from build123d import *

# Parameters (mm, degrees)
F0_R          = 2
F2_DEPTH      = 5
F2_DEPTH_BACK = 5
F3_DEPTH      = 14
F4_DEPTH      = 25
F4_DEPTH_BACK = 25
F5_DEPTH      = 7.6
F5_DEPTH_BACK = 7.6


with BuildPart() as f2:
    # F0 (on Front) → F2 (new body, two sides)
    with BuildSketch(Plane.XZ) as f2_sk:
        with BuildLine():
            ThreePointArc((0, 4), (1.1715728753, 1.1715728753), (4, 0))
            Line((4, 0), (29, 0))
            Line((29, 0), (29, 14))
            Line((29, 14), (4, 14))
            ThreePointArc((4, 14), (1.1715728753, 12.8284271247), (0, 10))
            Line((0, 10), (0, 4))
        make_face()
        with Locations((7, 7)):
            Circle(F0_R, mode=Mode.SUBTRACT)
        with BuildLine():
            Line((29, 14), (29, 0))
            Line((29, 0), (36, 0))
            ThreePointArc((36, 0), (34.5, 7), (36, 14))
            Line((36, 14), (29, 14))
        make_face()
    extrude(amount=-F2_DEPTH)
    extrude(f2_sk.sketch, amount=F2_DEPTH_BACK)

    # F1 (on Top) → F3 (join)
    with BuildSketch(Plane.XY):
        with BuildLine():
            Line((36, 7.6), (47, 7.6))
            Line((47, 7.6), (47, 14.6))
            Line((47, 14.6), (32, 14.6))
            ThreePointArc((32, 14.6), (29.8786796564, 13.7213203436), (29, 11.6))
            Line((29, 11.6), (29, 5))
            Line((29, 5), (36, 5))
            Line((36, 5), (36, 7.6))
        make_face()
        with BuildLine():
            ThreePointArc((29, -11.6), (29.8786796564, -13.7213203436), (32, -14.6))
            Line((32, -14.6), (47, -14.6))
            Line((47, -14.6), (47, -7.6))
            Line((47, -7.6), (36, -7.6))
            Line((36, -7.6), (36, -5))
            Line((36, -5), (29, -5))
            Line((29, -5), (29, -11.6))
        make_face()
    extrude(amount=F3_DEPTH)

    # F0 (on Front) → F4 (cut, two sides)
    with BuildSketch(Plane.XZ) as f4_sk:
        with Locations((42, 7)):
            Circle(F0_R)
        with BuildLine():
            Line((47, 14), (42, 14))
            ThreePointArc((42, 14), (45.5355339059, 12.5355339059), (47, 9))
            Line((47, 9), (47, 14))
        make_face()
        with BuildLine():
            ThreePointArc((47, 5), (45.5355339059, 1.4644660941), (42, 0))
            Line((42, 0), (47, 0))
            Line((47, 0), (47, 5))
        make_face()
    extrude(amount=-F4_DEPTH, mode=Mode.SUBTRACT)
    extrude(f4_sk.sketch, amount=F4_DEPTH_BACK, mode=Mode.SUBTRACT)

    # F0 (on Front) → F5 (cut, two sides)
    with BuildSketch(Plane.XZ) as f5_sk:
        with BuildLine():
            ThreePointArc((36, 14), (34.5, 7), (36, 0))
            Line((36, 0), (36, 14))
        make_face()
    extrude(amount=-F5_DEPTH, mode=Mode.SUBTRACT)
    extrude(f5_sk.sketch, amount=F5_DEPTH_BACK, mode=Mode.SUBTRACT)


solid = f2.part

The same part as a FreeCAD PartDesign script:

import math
import FreeCAD as App
import Part
import Sketcher
from FreeCAD import Vector
Q = App.Units.Quantity

doc = App.newDocument("Part")
params = doc.addObject("Spreadsheet::Sheet", "Params")
for row, (alias, value) in enumerate([
    ("sketch1_diameter", "4 mm"),
    ("sketch1_radius", "4 mm"),
    ("sketch1_width", "32 mm"),
    ("sketch1_height", "6 mm"),
    ("pad1_length", "5 mm"),
    ("pad1_length2", "5 mm"),
    ("sketch2_radius", "3 mm"),
    ("sketch2_width", "11 mm"),
    ("sketch2_width2", "15 mm"),
    ("sketch2_height", "6.6 mm"),
    ("pad2_length", "14 mm"),
    ("sketch3_diameter", "4 mm"),
    ("sketch3_radius", "5 mm"),
    ("sketch4_height", "14 mm"),
    ("pocket2_length", "7.6 mm"),
    ("pocket2_length2", "7.6 mm"),
], start=1):
    params.set(f"A{row}", alias)
    params.set(f"B{row}", "=" + value)
    params.setAlias(f"B{row}", alias)

body = doc.addObject("PartDesign::Body", "Body")

sketch1 = body.newObject("Sketcher::SketchObject", "Sketch")
sketch1.AttachmentSupport = (doc.getObject("XZ_Plane"), [""])
sketch1.MapMode = "FlatFace"
sketch1.addGeometry([
    Part.ArcOfCircle(Part.Circle(Vector(4, 4, 0), Vector(0, 0, 1), 4), math.radians(180), math.radians(270)),
    Part.LineSegment(Vector(4, 0, 0), Vector(36, 0, 0)),
    Part.ArcOfCircle(Part.Circle(Vector(51.6, 7, 0), Vector(0, 0, 1), 17.1), math.radians(156), math.radians(204)),
    Part.LineSegment(Vector(36, 14, 0), Vector(4, 14, 0)),
    Part.ArcOfCircle(Part.Circle(Vector(4, 10, 0), Vector(0, 0, 1), 4), math.radians(90), math.radians(180)),
    Part.LineSegment(Vector(0, 10, 0), Vector(0, 4, 0)),
    Part.Circle(Vector(7, 7, 0), Vector(0, 0, 1), 2),
], False)
sketch1.addConstraint([
    Sketcher.Constraint("Tangent", 0, 2, 1, 1),
    Sketcher.Constraint("Coincident", 1, 2, 2, 2),
    Sketcher.Constraint("Coincident", 2, 1, 3, 1),
    Sketcher.Constraint("Tangent", 3, 2, 4, 1),
    Sketcher.Constraint("Tangent", 4, 2, 5, 1),
    Sketcher.Constraint("Tangent", 5, 2, 0, 1),
    Sketcher.Constraint("Horizontal", 1),
    Sketcher.Constraint("Horizontal", 3),
    Sketcher.Constraint("Vertical", 5),
    Sketcher.Constraint("Equal", 0, 4),
    Sketcher.Constraint("PointOnObject", 0, 2, -1),
    Sketcher.Constraint("PointOnObject", 4, 2, -2),
    Sketcher.Constraint("Horizontal", 2, 3, 6, 3),
    Sketcher.Constraint("Vertical", 1, 2, 2, 1),
    Sketcher.Constraint("Diameter", 6, Q("4 mm")),
    Sketcher.Constraint("Radius", 0, Q("4 mm")),
    Sketcher.Constraint("DistanceX", 1, 1, 1, 2, Q("32 mm")),
    Sketcher.Constraint("DistanceY", 5, 2, 5, 1, Q("6 mm")),
    Sketcher.Constraint("DistanceX", -1, 1, 6, 3, Q("7 mm")),
    Sketcher.Constraint("Radius", 2, Q("17.083333 mm")),
])
sketch1.setExpression("Constraints[14]", "Params.sketch1_diameter")
sketch1.setExpression("Constraints[15]", "Params.sketch1_radius")
sketch1.setExpression("Constraints[16]", "Params.sketch1_width")
sketch1.setExpression("Constraints[17]", "Params.sketch1_height")
pad1 = body.newObject("PartDesign::Pad", "Pad")
pad1.Profile = sketch1
pad1.Type = "TwoLengths"
pad1.setExpression("Length", "Params.pad1_length")
pad1.setExpression("Length2", "Params.pad1_length2")
pad1.Reversed = True

sketch2 = body.newObject("Sketcher::SketchObject", "Sketch001")
sketch2.AttachmentSupport = (doc.getObject("XY_Plane"), [""])
sketch2.MapMode = "FlatFace"
sketch2.addGeometry([
    Part.LineSegment(Vector(36, 7.6, 0), Vector(47, 7.6, 0)),
    Part.LineSegment(Vector(47, 7.6, 0), Vector(47, 14.6, 0)),
    Part.LineSegment(Vector(47, 14.6, 0), Vector(32, 14.6, 0)),
    Part.ArcOfCircle(Part.Circle(Vector(32, 11.6, 0), Vector(0, 0, 1), 3), math.radians(90), math.radians(180)),
    Part.LineSegment(Vector(29, 11.6, 0), Vector(29, 5, 0)),
    Part.LineSegment(Vector(29, 5, 0), Vector(36, 5, 0)),
    Part.LineSegment(Vector(36, 5, 0), Vector(36, 7.6, 0)),
    Part.ArcOfCircle(Part.Circle(Vector(32, -11.6, 0), Vector(0, 0, 1), 3), math.radians(180), math.radians(270)),
    Part.LineSegment(Vector(32, -14.6, 0), Vector(47, -14.6, 0)),
    Part.LineSegment(Vector(47, -14.6, 0), Vector(47, -7.6, 0)),
    Part.LineSegment(Vector(47, -7.6, 0), Vector(36, -7.6, 0)),
    Part.LineSegment(Vector(36, -7.6, 0), Vector(36, -5, 0)),
    Part.LineSegment(Vector(36, -5, 0), Vector(29, -5, 0)),
    Part.LineSegment(Vector(29, -5, 0), Vector(29, -11.6, 0)),
], False)
sketch2.addConstraint([
    Sketcher.Constraint("Coincident", 0, 2, 1, 1),
    Sketcher.Constraint("Coincident", 1, 2, 2, 1),
    Sketcher.Constraint("Tangent", 2, 2, 3, 1),
    Sketcher.Constraint("Tangent", 3, 2, 4, 1),
    Sketcher.Constraint("Coincident", 4, 2, 5, 1),
    Sketcher.Constraint("Coincident", 5, 2, 6, 1),
    Sketcher.Constraint("Coincident", 6, 2, 0, 1),
    Sketcher.Constraint("Tangent", 7, 2, 8, 1),
    Sketcher.Constraint("Coincident", 8, 2, 9, 1),
    Sketcher.Constraint("Coincident", 9, 2, 10, 1),
    Sketcher.Constraint("Coincident", 10, 2, 11, 1),
    Sketcher.Constraint("Coincident", 11, 2, 12, 1),
    Sketcher.Constraint("Coincident", 12, 2, 13, 1),
    Sketcher.Constraint("Tangent", 13, 2, 7, 1),
    Sketcher.Constraint("Horizontal", 0),
    Sketcher.Constraint("Vertical", 1),
    Sketcher.Constraint("Horizontal", 2),
    Sketcher.Constraint("Vertical", 4),
    Sketcher.Constraint("Horizontal", 5),
    Sketcher.Constraint("Vertical", 6),
    Sketcher.Constraint("Horizontal", 8),
    Sketcher.Constraint("Vertical", 9),
    Sketcher.Constraint("Horizontal", 10),
    Sketcher.Constraint("Vertical", 11),
    Sketcher.Constraint("Horizontal", 12),
    Sketcher.Constraint("Vertical", 13),
    Sketcher.Constraint("Equal", 3, 7),
    Sketcher.Constraint("Symmetric", 3, 3, 7, 3, -1),
    Sketcher.Constraint("Symmetric", 0, 2, 9, 2, -1),
    Sketcher.Constraint("Symmetric", 5, 2, 11, 2, -1),
    Sketcher.Constraint("Equal", 12, 1),
    Sketcher.Constraint("Radius", 3, Q("3 mm")),
    Sketcher.Constraint("DistanceX", 0, 1, 0, 2, Q("11 mm")),
    Sketcher.Constraint("DistanceX", 2, 2, 2, 1, Q("15 mm")),
    Sketcher.Constraint("DistanceY", 4, 2, 4, 1, Q("6.6 mm")),
    Sketcher.Constraint("DistanceX", -1, 1, 3, 3, Q("32 mm")),
    Sketcher.Constraint("DistanceY", -1, 1, 4, 2, Q("5 mm")),
])
sketch2.setExpression("Constraints[31]", "Params.sketch2_radius")
sketch2.setExpression("Constraints[32]", "Params.sketch2_width")
sketch2.setExpression("Constraints[33]", "Params.sketch2_width2")
sketch2.setExpression("Constraints[34]", "Params.sketch2_height")
pad2 = body.newObject("PartDesign::Pad", "Pad001")
pad2.Profile = sketch2
pad2.setExpression("Length", "Params.pad2_length")

sketch3 = body.newObject("Sketcher::SketchObject", "Sketch002")
sketch3.AttachmentSupport = (doc.getObject("XZ_Plane"), [""])
sketch3.MapMode = "FlatFace"
sketch3.addGeometry([
    Part.Circle(Vector(42, 7, 0), Vector(0, 0, 1), 2),
    Part.LineSegment(Vector(47, 14, 0), Vector(42, 14, 0)),
    Part.ArcOfCircle(Part.Circle(Vector(42, 9, 0), Vector(0, 0, 1), 5), math.radians(0), math.radians(90)),
    Part.LineSegment(Vector(47, 9, 0), Vector(47, 14, 0)),
    Part.ArcOfCircle(Part.Circle(Vector(42, 5, 0), Vector(0, 0, 1), 5), math.radians(-90), math.radians(0)),
    Part.LineSegment(Vector(42, 0, 0), Vector(47, 0, 0)),
    Part.LineSegment(Vector(47, 0, 0), Vector(47, 5, 0)),
], False)
sketch3.addConstraint([
    Sketcher.Constraint("Tangent", 1, 2, 2, 2),
    Sketcher.Constraint("Tangent", 2, 1, 3, 1),
    Sketcher.Constraint("Coincident", 3, 2, 1, 1),
    Sketcher.Constraint("Tangent", 4, 1, 5, 1),
    Sketcher.Constraint("Coincident", 5, 2, 6, 1),
    Sketcher.Constraint("Tangent", 6, 2, 4, 2),
    Sketcher.Constraint("Horizontal", 1),
    Sketcher.Constraint("Vertical", 3),
    Sketcher.Constraint("Horizontal", 5),
    Sketcher.Constraint("Vertical", 6),
    Sketcher.Constraint("Equal", 2, 4),
    Sketcher.Constraint("PointOnObject", 4, 1, -1),
    Sketcher.Constraint("Vertical", 0, 3, 2, 3),
    Sketcher.Constraint("Vertical", 2, 3, 4, 3),
    Sketcher.Constraint("Diameter", 0, Q("4 mm")),
    Sketcher.Constraint("Radius", 2, Q("5 mm")),
    Sketcher.Constraint("DistanceX", -1, 1, 0, 3, Q("42 mm")),
    Sketcher.Constraint("DistanceY", -1, 1, 0, 3, Q("7 mm")),
    Sketcher.Constraint("DistanceY", -1, 1, 2, 3, Q("9 mm")),
])
sketch3.setExpression("Constraints[14]", "Params.sketch3_diameter")
sketch3.setExpression("Constraints[15]", "Params.sketch3_radius")
pocket1 = body.newObject("PartDesign::Pocket", "Pocket")
pocket1.Profile = sketch3
pocket1.Type = "ThroughAll"
pocket1.Midplane = True

sketch4 = body.newObject("Sketcher::SketchObject", "Sketch003")
sketch4.AttachmentSupport = (doc.getObject("XZ_Plane"), [""])
sketch4.MapMode = "FlatFace"
sketch4.addGeometry([
    Part.ArcOfCircle(Part.Circle(Vector(52, 7, 0), Vector(0, 0, 1), 17), math.radians(156), math.radians(204)),
    Part.LineSegment(Vector(36, 0, 0), Vector(36, 14, 0)),
], False)
sketch4.addConstraint([
    Sketcher.Constraint("Coincident", 0, 1, 1, 2),
    Sketcher.Constraint("Coincident", 1, 1, 0, 2),
    Sketcher.Constraint("Vertical", 1),
    Sketcher.Constraint("PointOnObject", 1, 1, -1),
    Sketcher.Constraint("DistanceY", 1, 1, 1, 2, Q("14 mm")),
    Sketcher.Constraint("DistanceX", -1, 1, 0, 1, Q("36 mm")),
    Sketcher.Constraint("Radius", 0, Q("17.083333 mm")),
])
sketch4.setExpression("Constraints[4]", "Params.sketch4_height")
pocket2 = body.newObject("PartDesign::Pocket", "Pocket001")
pocket2.Profile = sketch4
pocket2.Type = "TwoLengths"
pocket2.setExpression("Length", "Params.pocket2_length")
pocket2.setExpression("Length2", "Params.pocket2_length2")

doc.recompute()
